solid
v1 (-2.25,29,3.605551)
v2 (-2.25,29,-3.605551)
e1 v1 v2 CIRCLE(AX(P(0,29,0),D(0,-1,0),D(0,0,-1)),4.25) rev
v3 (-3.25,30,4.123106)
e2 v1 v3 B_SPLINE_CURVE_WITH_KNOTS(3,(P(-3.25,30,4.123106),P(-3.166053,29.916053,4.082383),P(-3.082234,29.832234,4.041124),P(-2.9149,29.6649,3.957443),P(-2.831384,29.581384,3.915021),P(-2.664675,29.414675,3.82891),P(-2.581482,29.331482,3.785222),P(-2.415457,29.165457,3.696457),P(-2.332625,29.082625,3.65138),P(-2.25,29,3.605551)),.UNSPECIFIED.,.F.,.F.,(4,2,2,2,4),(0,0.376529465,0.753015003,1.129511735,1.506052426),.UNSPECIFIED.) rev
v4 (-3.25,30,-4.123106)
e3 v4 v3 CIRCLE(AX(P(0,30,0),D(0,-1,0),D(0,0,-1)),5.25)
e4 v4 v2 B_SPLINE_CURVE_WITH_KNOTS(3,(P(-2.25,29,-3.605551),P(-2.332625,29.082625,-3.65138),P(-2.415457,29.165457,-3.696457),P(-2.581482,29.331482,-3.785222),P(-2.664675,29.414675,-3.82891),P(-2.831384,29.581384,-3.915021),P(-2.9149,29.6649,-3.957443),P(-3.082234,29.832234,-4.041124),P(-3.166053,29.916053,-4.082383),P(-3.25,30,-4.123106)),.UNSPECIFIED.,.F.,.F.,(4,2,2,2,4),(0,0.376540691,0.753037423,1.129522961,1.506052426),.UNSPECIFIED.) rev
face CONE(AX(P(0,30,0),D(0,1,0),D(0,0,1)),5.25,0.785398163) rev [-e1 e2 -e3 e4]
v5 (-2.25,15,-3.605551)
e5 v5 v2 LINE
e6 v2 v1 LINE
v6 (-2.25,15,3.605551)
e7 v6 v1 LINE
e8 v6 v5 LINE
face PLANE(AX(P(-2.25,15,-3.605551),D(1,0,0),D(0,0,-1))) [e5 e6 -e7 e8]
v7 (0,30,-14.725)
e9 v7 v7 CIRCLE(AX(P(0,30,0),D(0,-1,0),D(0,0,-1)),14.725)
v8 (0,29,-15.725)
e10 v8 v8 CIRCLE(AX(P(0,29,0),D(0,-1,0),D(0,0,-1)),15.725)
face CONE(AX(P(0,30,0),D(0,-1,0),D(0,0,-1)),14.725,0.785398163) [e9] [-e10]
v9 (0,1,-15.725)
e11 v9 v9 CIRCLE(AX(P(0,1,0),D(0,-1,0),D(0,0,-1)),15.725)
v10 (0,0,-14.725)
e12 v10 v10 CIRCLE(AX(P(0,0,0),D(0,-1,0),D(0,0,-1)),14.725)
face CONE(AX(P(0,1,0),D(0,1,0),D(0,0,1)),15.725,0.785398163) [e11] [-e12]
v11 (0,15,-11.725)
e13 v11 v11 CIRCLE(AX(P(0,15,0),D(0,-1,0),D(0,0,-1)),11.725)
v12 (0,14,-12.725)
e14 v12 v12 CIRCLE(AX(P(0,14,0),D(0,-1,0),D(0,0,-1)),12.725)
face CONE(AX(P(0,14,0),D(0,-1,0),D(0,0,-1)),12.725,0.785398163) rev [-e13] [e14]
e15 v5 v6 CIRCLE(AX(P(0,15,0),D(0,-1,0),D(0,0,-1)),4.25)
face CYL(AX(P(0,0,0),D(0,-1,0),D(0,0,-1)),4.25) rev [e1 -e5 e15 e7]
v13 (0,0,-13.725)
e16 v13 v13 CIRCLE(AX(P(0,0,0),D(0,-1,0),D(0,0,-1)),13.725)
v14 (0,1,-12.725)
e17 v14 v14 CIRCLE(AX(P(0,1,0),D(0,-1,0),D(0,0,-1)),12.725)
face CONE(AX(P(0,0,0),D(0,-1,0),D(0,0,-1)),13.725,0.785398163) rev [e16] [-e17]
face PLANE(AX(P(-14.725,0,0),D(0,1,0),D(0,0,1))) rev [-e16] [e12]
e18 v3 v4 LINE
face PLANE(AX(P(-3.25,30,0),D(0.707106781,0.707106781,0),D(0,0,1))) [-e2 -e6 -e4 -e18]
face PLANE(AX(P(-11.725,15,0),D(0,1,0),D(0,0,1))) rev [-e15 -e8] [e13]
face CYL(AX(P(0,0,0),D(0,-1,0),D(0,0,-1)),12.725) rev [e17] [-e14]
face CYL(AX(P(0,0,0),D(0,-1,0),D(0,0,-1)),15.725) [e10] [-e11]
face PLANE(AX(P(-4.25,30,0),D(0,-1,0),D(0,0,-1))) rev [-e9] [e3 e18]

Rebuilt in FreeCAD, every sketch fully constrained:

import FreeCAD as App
import Part
import Sketcher

V = App.Vector


def edges_at(feature, points):
    """Names of the edges that pass closest to the given points."""
    edges = feature.Shape.Edges
    near = lambda p: min(range(len(edges)), key=lambda i: edges[i].distToShape(Part.Vertex(*p))[0])
    return sorted({f"Edge{near(p) + 1}" for p in points})


def add_polygon(sketch, points):
    """Adds a closed chain of lines whose ends are joined by coincident constraints."""
    first, n = sketch.GeometryCount, len(points)
    for a, b in zip(points, points[1:] + points[:1]):
        sketch.addGeometry(Part.LineSegment(App.Vector(*a, 0), App.Vector(*b, 0)), False)
    for i in range(n):
        sketch.addConstraint(Sketcher.Constraint("Coincident", first + i, 2, first + (i + 1) % n, 1))

doc = App.newDocument("Part")
body = doc.addObject("PartDesign::Body", "Body")

sketch1 = body.newObject("Sketcher::SketchObject", "Sketch")
sketch1.AttachmentSupport = (doc.getObject("XY_Plane"), [""])
sketch1.MapMode = "FlatFace"
add_polygon(sketch1, [(-4.25, 30), (-14.725, 30), (-15.725, 29), (-15.725, 1), (-14.725, 0), (-13.725, 0), (-12.725, 1), (-12.725, 14), (-11.725, 15), (-4.25, 15)])
sketch1.addConstraint(Sketcher.Constraint("Horizontal", 0))
sketch1.addConstraint(Sketcher.Constraint("Vertical", 2))
sketch1.addConstraint(Sketcher.Constraint("Horizontal", 4))
sketch1.addConstraint(Sketcher.Constraint("Vertical", 6))
sketch1.addConstraint(Sketcher.Constraint("Horizontal", 8))
sketch1.addConstraint(Sketcher.Constraint("Vertical", 9))
sketch1.addConstraint(Sketcher.Constraint("PointOnObject", 3, 2, -1))
sketch1.addConstraint(Sketcher.Constraint("Perpendicular", 1, 3))
sketch1.addConstraint(Sketcher.Constraint("Perpendicular", 3, 5))
sketch1.addConstraint(Sketcher.Constraint("Parallel", 5, 7))
sketch1.addConstraint(Sketcher.Constraint("Horizontal", 2, 2, 5, 2))
sketch1.addConstraint(Sketcher.Constraint("Vertical", 0, 2, 3, 2))
sketch1.addConstraint(Sketcher.Constraint("Equal", 1, 3))
sketch1.addConstraint(Sketcher.Constraint("Equal", 5, 7))
sketch1.addConstraint(Sketcher.Constraint("DistanceX", 4, 1, 4, 2, 1.0))
sketch1.addConstraint(Sketcher.Constraint("DistanceY", 2, 2, 2, 1, 28.0))
sketch1.addConstraint(Sketcher.Constraint("DistanceY", 6, 1, 6, 2, 13.0))
sketch1.addConstraint(Sketcher.Constraint("DistanceY", -1, 1, 0, 2, 30.0))
sketch1.addConstraint(Sketcher.Constraint("DistanceX", 0, 2, 0, 1, 10.475))
sketch1.addConstraint(Sketcher.Constraint("DistanceX", 8, 2, -1, 1, 4.25))
revolution = body.newObject("PartDesign::Revolution", "Revolution")
revolution.Profile = sketch1
revolution.ReferenceAxis = (sketch1, ["V_Axis"])
revolution.Angle = 360

sketch2 = body.newObject("Sketcher::SketchObject", "Sketch001")
sketch2.AttachmentSupport = (doc.getObject("XZ_Plane"), [""])
sketch2.MapMode = "FlatFace"
sketch2.AttachmentOffset = App.Placement(V(0, 0, -30), App.Rotation())
add_polygon(sketch2, [(-6.25, -3.605551), (-6.25, 3.605551), (-2.25, 3.605551), (-2.25, -3.605551)])
sketch2.addConstraint(Sketcher.Constraint("Vertical", 0))
sketch2.addConstraint(Sketcher.Constraint("Horizontal", 1))
sketch2.addConstraint(Sketcher.Constraint("Vertical", 2))
sketch2.addConstraint(Sketcher.Constraint("Horizontal", 3))
sketch2.addConstraint(Sketcher.Constraint("DistanceX", 1, 1, 1, 2, 4.0))
sketch2.addConstraint(Sketcher.Constraint("DistanceX", 0, 2, -1, 1, 6.25))
sketch2.addConstraint(Sketcher.Constraint("DistanceY", 0, 1, 0, 2, 7.211103))
sketch2.addConstraint(Sketcher.Constraint("DistanceY", -1, 1, 0, 2, 3.605551))
pad1 = body.newObject("PartDesign::Pad", "Pad")
pad1.Profile = sketch2
pad1.Length = 15
doc.recompute()

chamfer = body.newObject("PartDesign::Chamfer", "Chamfer")
chamfer.Base = (pad1, edges_at(pad1, [(4.25, 30, 0), (-2.25, 30, 0)]))
chamfer.Size = 1

doc.recompute()
